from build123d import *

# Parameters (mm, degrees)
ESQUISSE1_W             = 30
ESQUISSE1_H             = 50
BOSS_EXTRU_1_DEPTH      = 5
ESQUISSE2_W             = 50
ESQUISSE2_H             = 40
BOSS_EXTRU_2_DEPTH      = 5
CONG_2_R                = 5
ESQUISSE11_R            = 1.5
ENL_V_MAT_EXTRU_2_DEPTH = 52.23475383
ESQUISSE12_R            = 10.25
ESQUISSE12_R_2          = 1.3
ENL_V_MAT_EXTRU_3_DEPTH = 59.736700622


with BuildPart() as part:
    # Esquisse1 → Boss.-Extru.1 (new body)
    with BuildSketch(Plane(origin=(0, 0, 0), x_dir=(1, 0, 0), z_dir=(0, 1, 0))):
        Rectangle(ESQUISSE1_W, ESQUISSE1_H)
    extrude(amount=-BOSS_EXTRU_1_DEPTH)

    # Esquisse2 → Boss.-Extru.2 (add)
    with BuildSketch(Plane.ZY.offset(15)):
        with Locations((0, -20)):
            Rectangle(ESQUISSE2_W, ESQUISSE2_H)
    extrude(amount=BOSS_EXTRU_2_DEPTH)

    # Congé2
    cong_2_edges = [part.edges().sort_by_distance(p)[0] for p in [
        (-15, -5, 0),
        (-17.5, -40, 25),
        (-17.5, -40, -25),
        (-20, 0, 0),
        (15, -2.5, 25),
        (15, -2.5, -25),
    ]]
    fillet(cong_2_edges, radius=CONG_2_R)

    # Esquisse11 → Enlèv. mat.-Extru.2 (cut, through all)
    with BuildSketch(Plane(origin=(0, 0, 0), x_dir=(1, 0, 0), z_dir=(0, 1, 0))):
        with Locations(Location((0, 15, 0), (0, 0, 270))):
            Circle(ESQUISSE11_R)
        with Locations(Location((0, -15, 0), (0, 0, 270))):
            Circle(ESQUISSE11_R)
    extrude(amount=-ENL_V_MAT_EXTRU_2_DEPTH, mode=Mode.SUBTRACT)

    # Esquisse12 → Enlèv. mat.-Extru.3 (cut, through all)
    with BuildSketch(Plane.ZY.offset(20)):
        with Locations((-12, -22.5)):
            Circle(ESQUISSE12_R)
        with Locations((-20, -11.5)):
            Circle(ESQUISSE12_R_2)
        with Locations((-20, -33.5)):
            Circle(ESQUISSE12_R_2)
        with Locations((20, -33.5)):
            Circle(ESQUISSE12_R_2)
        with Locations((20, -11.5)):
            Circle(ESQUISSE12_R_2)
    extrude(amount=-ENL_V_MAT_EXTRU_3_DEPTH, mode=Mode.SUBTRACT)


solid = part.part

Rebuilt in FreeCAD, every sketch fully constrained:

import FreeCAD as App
import Part
import Sketcher
Q = App.Units.Quantity


def edges_at(feature, points):
    """Names of the edges that pass closest to the given points."""
    edges = feature.Shape.Edges
    near = lambda p: min(range(len(edges)), key=lambda i: edges[i].distToShape(Part.Vertex(*p))[0])
    return sorted({f"Edge{near(p) + 1}" for p in points})


def add_polygon(sketch, points):
    """Adds a closed chain of lines whose ends are joined by coincident constraints."""
    first, n = sketch.GeometryCount, len(points)
    for a, b in zip(points, points[1:] + points[:1]):
        sketch.addGeometry(Part.LineSegment(App.Vector(*a, 0), App.Vector(*b, 0)), False)
    for i in range(n):
        sketch.addConstraint(Sketcher.Constraint("Coincident", first + i, 2, first + (i + 1) % n, 1))

doc = App.newDocument("Part")
body = doc.addObject("PartDesign::Body", "Body")

# Sketch on XZ plane
sketch1 = body.newObject("Sketcher::SketchObject", "Sketch")
sketch1.AttachmentSupport = (doc.getObject("XZ_Plane"), [""])
sketch1.MapMode = "FlatFace"
add_polygon(sketch1, [(-15, -25), (-15, 25), (15, 25), (15, -25)])  # lines 0-3
sketch1.addConstraint(Sketcher.Constraint("Vertical", 0))
sketch1.addConstraint(Sketcher.Constraint("Horizontal", 1))
sketch1.addConstraint(Sketcher.Constraint("Vertical", 2))
sketch1.addConstraint(Sketcher.Constraint("Horizontal", 3))
sketch1.addConstraint(Sketcher.Constraint("Symmetric", 0, 2, 2, 2, -1, 1))
sketch1.addConstraint(Sketcher.Constraint("DistanceX", 1, 1, 1, 2, Q("30 mm")))
sketch1.addConstraint(Sketcher.Constraint("DistanceY", 0, 1, 0, 2, Q("50 mm")))
pad1 = body.newObject("PartDesign::Pad", "Pad")
pad1.Profile = sketch1
pad1.Length = 5

# Sketch on YZ plane
sketch2 = body.newObject("Sketcher::SketchObject", "Sketch001")
sketch2.AttachmentSupport = (doc.getObject("YZ_Plane"), [""])
sketch2.MapMode = "FlatFace"
sketch2.AttachmentOffset = App.Placement(App.Vector(0, 0, -15), App.Rotation())
add_polygon(sketch2, [(0, -25), (-40, -25), (-40, 25), (0, 25)])  # lines 0-3
sketch2.addConstraint(Sketcher.Constraint("Horizontal", 0))
sketch2.addConstraint(Sketcher.Constraint("Vertical", 1))
sketch2.addConstraint(Sketcher.Constraint("Horizontal", 2))
sketch2.addConstraint(Sketcher.Constraint("Vertical", 3))
sketch2.addConstraint(Sketcher.Constraint("Symmetric", 2, 2, 3, 2, -1, 1))
sketch2.addConstraint(Sketcher.Constraint("DistanceX", 0, 2, 0, 1, Q("40 mm")))
sketch2.addConstraint(Sketcher.Constraint("DistanceY", 1, 1, 1, 2, Q("50 mm")))
pad2 = body.newObject("PartDesign::Pad", "Pad001")
pad2.Profile = sketch2
pad2.Length = 5
pad2.Reversed = True
doc.recompute()

fillet = body.newObject("PartDesign::Fillet", "Fillet")
fillet.Base = (pad2, edges_at(pad2, [
    (-15, -5, 0),
    (-17.5, -40, 25),
    (-17.5, -40, -25),
    (-20, 0, 0),
    (15, -2.5, 25),
    (15, -2.5, -25),
]))
fillet.Radius = 5

# Sketch on XZ plane
sketch3 = body.newObject("Sketcher::SketchObject", "Sketch002")
sketch3.AttachmentSupport = (doc.getObject("XZ_Plane"), [""])
sketch3.MapMode = "FlatFace"
sketch3.addGeometry(Part.Circle(App.Vector(0, -15, 0), App.Vector(0, 0, 1), 1.5), False)
sketch3.addGeometry(Part.Circle(App.Vector(0, 15, 0), App.Vector(0, 0, 1), 1.5), False)
sketch3.addConstraint(Sketcher.Constraint("Equal", 0, 1))
sketch3.addConstraint(Sketcher.Constraint("Symmetric", 0, 3, 1, 3, -1, 1))
sketch3.addConstraint(Sketcher.Constraint("PointOnObject", 0, 3, -2))
sketch3.addConstraint(Sketcher.Constraint("Diameter", 0, Q("3 mm")))
sketch3.addConstraint(Sketcher.Constraint("DistanceY", 0, 3, -1, 1, Q("15 mm")))
pocket1 = body.newObject("PartDesign::Pocket", "Pocket")
pocket1.Profile = sketch3
pocket1.Type = "ThroughAll"
pocket1.Reversed = True

# Sketch on YZ plane
sketch4 = body.newObject("Sketcher::SketchObject", "Sketch003")
sketch4.AttachmentSupport = (doc.getObject("YZ_Plane"), [""])
sketch4.MapMode = "FlatFace"
sketch4.AttachmentOffset = App.Placement(App.Vector(0, 0, -20), App.Rotation())
sketch4.addGeometry(Part.Circle(App.Vector(-22.5, -12, 0), App.Vector(0, 0, 1), 10.2), False)
sketch4.addGeometry(Part.Circle(App.Vector(-11.5, -20, 0), App.Vector(0, 0, 1), 1.3), False)
sketch4.addGeometry(Part.Circle(App.Vector(-33.5, -20, 0), App.Vector(0, 0, 1), 1.3), False)
sketch4.addGeometry(Part.Circle(App.Vector(-33.5, 20, 0), App.Vector(0, 0, 1), 1.3), False)
sketch4.addGeometry(Part.Circle(App.Vector(-11.5, 20, 0), App.Vector(0, 0, 1), 1.3), False)
sketch4.addConstraint(Sketcher.Constraint("Equal", 1, 2))
sketch4.addConstraint(Sketcher.Constraint("Equal", 2, 3))
sketch4.addConstraint(Sketcher.Constraint("Equal", 3, 4))
sketch4.addConstraint(Sketcher.Constraint("Symmetric", 2, 3, 3, 3, -1))
sketch4.addConstraint(Sketcher.Constraint("Symmetric", 1, 3, 4, 3, -1))
sketch4.addConstraint(Sketcher.Constraint("Horizontal", 1, 3, 2, 3))
sketch4.addConstraint(Sketcher.Constraint("Diameter", 0, Q("20.5 mm")))
sketch4.addConstraint(Sketcher.Constraint("Diameter", 1, Q("2.6 mm")))
sketch4.addConstraint(Sketcher.Constraint("DistanceY", 0, 3, -1, 1, Q("12 mm")))
sketch4.addConstraint(Sketcher.Constraint("DistanceY", 1, 3, -1, 1, Q("20 mm")))
sketch4.addConstraint(Sketcher.Constraint("DistanceX", 0, 3, 1, 3, Q("11 mm")))
sketch4.addConstraint(Sketcher.Constraint("DistanceX", 2, 3, 0, 3, Q("11 mm")))
sketch4.addConstraint(Sketcher.Constraint("DistanceX", 0, 3, -1, 1, Q("22.5 mm")))
pocket2 = body.newObject("PartDesign::Pocket", "Pocket001")
pocket2.Profile = sketch4
pocket2.Type = "ThroughAll"
pocket2.Reversed = True

doc.recompute()
